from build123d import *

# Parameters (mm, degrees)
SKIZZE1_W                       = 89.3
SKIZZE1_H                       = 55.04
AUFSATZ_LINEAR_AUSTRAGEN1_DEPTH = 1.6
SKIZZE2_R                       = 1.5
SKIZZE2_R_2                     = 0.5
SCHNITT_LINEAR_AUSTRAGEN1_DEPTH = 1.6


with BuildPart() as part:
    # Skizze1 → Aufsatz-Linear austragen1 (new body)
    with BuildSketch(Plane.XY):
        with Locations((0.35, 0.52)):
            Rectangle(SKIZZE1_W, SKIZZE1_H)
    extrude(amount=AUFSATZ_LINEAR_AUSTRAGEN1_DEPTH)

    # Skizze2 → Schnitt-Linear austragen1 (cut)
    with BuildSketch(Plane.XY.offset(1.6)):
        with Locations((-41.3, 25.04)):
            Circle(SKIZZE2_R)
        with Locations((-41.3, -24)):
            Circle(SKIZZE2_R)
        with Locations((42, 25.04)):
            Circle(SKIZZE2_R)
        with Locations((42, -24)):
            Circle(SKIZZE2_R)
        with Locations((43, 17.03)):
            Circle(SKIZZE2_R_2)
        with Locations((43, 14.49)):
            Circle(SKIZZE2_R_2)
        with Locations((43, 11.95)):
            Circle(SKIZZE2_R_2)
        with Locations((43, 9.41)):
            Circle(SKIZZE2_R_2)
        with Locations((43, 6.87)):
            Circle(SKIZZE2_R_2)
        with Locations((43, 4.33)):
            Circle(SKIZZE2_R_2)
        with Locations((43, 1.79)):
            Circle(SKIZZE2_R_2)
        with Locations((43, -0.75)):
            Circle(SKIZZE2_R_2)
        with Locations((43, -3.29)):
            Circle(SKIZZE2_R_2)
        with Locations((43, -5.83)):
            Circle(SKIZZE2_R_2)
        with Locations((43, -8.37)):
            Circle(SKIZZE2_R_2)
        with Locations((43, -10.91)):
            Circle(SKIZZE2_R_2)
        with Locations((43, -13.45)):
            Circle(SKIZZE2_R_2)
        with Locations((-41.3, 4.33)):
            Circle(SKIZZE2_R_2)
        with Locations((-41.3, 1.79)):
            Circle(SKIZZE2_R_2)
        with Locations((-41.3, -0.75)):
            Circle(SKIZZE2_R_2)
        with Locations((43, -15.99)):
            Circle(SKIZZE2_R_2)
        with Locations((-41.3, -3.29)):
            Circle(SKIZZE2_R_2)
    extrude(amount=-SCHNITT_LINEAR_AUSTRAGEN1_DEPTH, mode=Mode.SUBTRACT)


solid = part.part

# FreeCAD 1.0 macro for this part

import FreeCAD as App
import Part
import Sketcher

V = App.Vector


def add_polygon(sketch, points):
    """Adds a closed chain of lines whose ends are joined by coincident constraints."""
    first, n = sketch.GeometryCount, len(points)
    for a, b in zip(points, points[1:] + points[:1]):
        sketch.addGeometry(Part.LineSegment(App.Vector(*a, 0), App.Vector(*b, 0)), False)
    for i in range(n):
        sketch.addConstraint(Sketcher.Constraint("Coincident", first + i, 2, first + (i + 1) % n, 1))

doc = App.newDocument("Part")
body = doc.addObject("PartDesign::Body", "Body")

sketch1 = body.newObject("Sketcher::SketchObject", "Sketch")
sketch1.AttachmentSupport = (doc.getObject("XY_Plane"), [""])
sketch1.MapMode = "FlatFace"
add_polygon(sketch1, [(-44, 28), (-44, -27), (45, -27), (45, 28)])
sketch1.addConstraint([
    Sketcher.Constraint("Vertical", 0),
    Sketcher.Constraint("Horizontal", 1),
    Sketcher.Constraint("Vertical", 2),
    Sketcher.Constraint("Horizontal", 3),
    Sketcher.Constraint("DistanceX", 1, 1, 1, 2, 89.3),
    Sketcher.Constraint("DistanceY", 0, 2, -1, 1, 27.0),
    Sketcher.Constraint("DistanceX", -1, 1, 1, 2, 45.0),
    Sketcher.Constraint("DistanceY", 0, 2, 0, 1, 55.04),
])
pad1 = body.newObject("PartDesign::Pad", "Pad")
pad1.Profile = sketch1
pad1.Length = 1.6

sketch2 = body.newObject("Sketcher::SketchObject", "Sketch001")
sketch2.AttachmentSupport = (doc.getObject("XY_Plane"), [""])
sketch2.MapMode = "FlatFace"
sketch2.AttachmentOffset = App.Placement(V(0, 0, 1.6), App.Rotation())
sketch2.addGeometry([
    Part.Circle(V(-41.3, 25, 0), V(0, 0, 1), 1.5),
    Part.Circle(V(-41.3, -24, 0), V(0, 0, 1), 1.5),
    Part.Circle(V(42, 25, 0), V(0, 0, 1), 1.5),
    Part.Circle(V(42, -24, 0), V(0, 0, 1), 1.5),
    Part.Circle(V(43, 17, 0), V(0, 0, 1), 0.5),
    Part.Circle(V(43, 14.5, 0), V(0, 0, 1), 0.5),
    Part.Circle(V(43, 11.9, 0), V(0, 0, 1), 0.5),
    Part.Circle(V(43, 9.4, 0), V(0, 0, 1), 0.5),
    Part.Circle(V(43, 6.9, 0), V(0, 0, 1), 0.5),
    Part.Circle(V(43, 4.3, 0), V(0, 0, 1), 0.5),
    Part.Circle(V(43, 1.8, 0), V(0, 0, 1), 0.5),
    Part.Circle(V(43, -0.8, 0), V(0, 0, 1), 0.5),
    Part.Circle(V(43, -3.3, 0), V(0, 0, 1), 0.5),
    Part.Circle(V(43, -5.8, 0), V(0, 0, 1), 0.5),
    Part.Circle(V(43, -8.4, 0), V(0, 0, 1), 0.5),
    Part.Circle(V(43, -10.9, 0), V(0, 0, 1), 0.5),
    Part.Circle(V(43, -13.4, 0), V(0, 0, 1), 0.5),
    Part.Circle(V(-41.3, 4.3, 0), V(0, 0, 1), 0.5),
    Part.Circle(V(-41.3, 1.8, 0), V(0, 0, 1), 0.5),
    Part.Circle(V(-41.3, -0.8, 0), V(0, 0, 1), 0.5),
    Part.Circle(V(43, -16, 0), V(0, 0, 1), 0.5),
    Part.Circle(V(-41.3, -3.3, 0), V(0, 0, 1), 0.5),
], False)
sketch2.addConstraint([
    Sketcher.Constraint("Equal", 0, 1),
    Sketcher.Constraint("Equal", 1, 2),
    Sketcher.Constraint("Equal", 2, 3),
    Sketcher.Constraint("Equal", 4, 5),
    Sketcher.Constraint("Equal", 5, 6),
    Sketcher.Constraint("Equal", 6, 7),
    Sketcher.Constraint("Equal", 7, 8),
    Sketcher.Constraint("Equal", 8, 9),
    Sketcher.Constraint("Equal", 9, 10),
    Sketcher.Constraint("Equal", 10, 11),
    Sketcher.Constraint("Equal", 11, 12),
    Sketcher.Constraint("Equal", 12, 13),
    Sketcher.Constraint("Equal", 13, 14),
    Sketcher.Constraint("Equal", 14, 15),
    Sketcher.Constraint("Equal", 15, 16),
    Sketcher.Constraint("Equal", 16, 17),
    Sketcher.Constraint("Equal", 17, 18),
    Sketcher.Constraint("Equal", 18, 19),
    Sketcher.Constraint("Equal", 19, 20),
    Sketcher.Constraint("Equal", 20, 21),
    Sketcher.Constraint("Horizontal", 0, 3, 2, 3),
    Sketcher.Constraint("Horizontal", 1, 3, 3, 3),
    Sketcher.Constraint("Horizontal", 9, 3, 17, 3),
    Sketcher.Constraint("Horizontal", 10, 3, 18, 3),
    Sketcher.Constraint("Horizontal", 11, 3, 19, 3),
    Sketcher.Constraint("Horizontal", 12, 3, 21, 3),
    Sketcher.Constraint("Vertical", 0, 3, 1, 3),
    Sketcher.Constraint("Vertical", 2, 3, 3, 3),
    Sketcher.Constraint("Vertical", 4, 3, 5, 3),
    Sketcher.Constraint("Vertical", 5, 3, 6, 3),
    Sketcher.Constraint("Vertical", 6, 3, 7, 3),
    Sketcher.Constraint("Vertical", 7, 3, 8, 3),
    Sketcher.Constraint("Vertical", 8, 3, 9, 3),
    Sketcher.Constraint("Vertical", 9, 3, 10, 3),
    Sketcher.Constraint("Vertical", 10, 3, 11, 3),
    Sketcher.Constraint("Vertical", 11, 3, 12, 3),
    Sketcher.Constraint("Vertical", 12, 3, 13, 3),
    Sketcher.Constraint("Vertical", 13, 3, 14, 3),
    Sketcher.Constraint("Vertical", 14, 3, 15, 3),
    Sketcher.Constraint("Vertical", 15, 3, 16, 3),
    Sketcher.Constraint("Vertical", 1, 3, 17, 3),
    Sketcher.Constraint("Vertical", 17, 3, 18, 3),
    Sketcher.Constraint("Vertical", 18, 3, 19, 3),
    Sketcher.Constraint("Vertical", 16, 3, 20, 3),
    Sketcher.Constraint("Vertical", 19, 3, 21, 3),
    Sketcher.Constraint("Diameter", 0, 3.0),
    Sketcher.Constraint("Diameter", 4, 1.0),
    Sketcher.Constraint("DistanceY", 1, 3, -1, 1, 24.0),
    Sketcher.Constraint("DistanceX", -1, 1, 2, 3, 42.0),
    Sketcher.Constraint("DistanceX", -1, 1, 4, 3, 43.0),
    Sketcher.Constraint("DistanceX", 0, 3, -1, 1, 41.3),
    Sketcher.Constraint("DistanceY", 9, 3, 4, 3, 12.7),
    Sketcher.Constraint("DistanceY", 10, 3, 5, 3, 12.7),
    Sketcher.Constraint("DistanceY", 11, 3, 6, 3, 12.7),
    Sketcher.Constraint("DistanceY", 12, 3, 7, 3, 12.7),
    Sketcher.Constraint("DistanceY", 13, 3, 8, 3, 12.7),
    Sketcher.Constraint("DistanceY", 14, 3, 9, 3, 12.7),
    Sketcher.Constraint("DistanceY", 15, 3, 10, 3, 12.7),
    Sketcher.Constraint("DistanceY", -1, 1, 0, 3, 25.04),
    Sketcher.Constraint("DistanceY", -1, 1, 4, 3, 17.03),
    Sketcher.Constraint("DistanceY", -1, 1, 5, 3, 14.49),
    Sketcher.Constraint("DistanceY", -1, 1, 6, 3, 11.95),
    Sketcher.Constraint("DistanceY", -1, 1, 7, 3, 9.41),
    Sketcher.Constraint("DistanceY", -1, 1, 8, 3, 6.87),
    Sketcher.Constraint("DistanceY", 16, 3, -1, 1, 13.45),
    Sketcher.Constraint("DistanceY", 20, 3, -1, 1, 15.99),
])
pocket1 = body.newObject("PartDesign::Pocket", "Pocket")
pocket1.Profile = sketch2
pocket1.Length = 1.6

doc.recompute()
